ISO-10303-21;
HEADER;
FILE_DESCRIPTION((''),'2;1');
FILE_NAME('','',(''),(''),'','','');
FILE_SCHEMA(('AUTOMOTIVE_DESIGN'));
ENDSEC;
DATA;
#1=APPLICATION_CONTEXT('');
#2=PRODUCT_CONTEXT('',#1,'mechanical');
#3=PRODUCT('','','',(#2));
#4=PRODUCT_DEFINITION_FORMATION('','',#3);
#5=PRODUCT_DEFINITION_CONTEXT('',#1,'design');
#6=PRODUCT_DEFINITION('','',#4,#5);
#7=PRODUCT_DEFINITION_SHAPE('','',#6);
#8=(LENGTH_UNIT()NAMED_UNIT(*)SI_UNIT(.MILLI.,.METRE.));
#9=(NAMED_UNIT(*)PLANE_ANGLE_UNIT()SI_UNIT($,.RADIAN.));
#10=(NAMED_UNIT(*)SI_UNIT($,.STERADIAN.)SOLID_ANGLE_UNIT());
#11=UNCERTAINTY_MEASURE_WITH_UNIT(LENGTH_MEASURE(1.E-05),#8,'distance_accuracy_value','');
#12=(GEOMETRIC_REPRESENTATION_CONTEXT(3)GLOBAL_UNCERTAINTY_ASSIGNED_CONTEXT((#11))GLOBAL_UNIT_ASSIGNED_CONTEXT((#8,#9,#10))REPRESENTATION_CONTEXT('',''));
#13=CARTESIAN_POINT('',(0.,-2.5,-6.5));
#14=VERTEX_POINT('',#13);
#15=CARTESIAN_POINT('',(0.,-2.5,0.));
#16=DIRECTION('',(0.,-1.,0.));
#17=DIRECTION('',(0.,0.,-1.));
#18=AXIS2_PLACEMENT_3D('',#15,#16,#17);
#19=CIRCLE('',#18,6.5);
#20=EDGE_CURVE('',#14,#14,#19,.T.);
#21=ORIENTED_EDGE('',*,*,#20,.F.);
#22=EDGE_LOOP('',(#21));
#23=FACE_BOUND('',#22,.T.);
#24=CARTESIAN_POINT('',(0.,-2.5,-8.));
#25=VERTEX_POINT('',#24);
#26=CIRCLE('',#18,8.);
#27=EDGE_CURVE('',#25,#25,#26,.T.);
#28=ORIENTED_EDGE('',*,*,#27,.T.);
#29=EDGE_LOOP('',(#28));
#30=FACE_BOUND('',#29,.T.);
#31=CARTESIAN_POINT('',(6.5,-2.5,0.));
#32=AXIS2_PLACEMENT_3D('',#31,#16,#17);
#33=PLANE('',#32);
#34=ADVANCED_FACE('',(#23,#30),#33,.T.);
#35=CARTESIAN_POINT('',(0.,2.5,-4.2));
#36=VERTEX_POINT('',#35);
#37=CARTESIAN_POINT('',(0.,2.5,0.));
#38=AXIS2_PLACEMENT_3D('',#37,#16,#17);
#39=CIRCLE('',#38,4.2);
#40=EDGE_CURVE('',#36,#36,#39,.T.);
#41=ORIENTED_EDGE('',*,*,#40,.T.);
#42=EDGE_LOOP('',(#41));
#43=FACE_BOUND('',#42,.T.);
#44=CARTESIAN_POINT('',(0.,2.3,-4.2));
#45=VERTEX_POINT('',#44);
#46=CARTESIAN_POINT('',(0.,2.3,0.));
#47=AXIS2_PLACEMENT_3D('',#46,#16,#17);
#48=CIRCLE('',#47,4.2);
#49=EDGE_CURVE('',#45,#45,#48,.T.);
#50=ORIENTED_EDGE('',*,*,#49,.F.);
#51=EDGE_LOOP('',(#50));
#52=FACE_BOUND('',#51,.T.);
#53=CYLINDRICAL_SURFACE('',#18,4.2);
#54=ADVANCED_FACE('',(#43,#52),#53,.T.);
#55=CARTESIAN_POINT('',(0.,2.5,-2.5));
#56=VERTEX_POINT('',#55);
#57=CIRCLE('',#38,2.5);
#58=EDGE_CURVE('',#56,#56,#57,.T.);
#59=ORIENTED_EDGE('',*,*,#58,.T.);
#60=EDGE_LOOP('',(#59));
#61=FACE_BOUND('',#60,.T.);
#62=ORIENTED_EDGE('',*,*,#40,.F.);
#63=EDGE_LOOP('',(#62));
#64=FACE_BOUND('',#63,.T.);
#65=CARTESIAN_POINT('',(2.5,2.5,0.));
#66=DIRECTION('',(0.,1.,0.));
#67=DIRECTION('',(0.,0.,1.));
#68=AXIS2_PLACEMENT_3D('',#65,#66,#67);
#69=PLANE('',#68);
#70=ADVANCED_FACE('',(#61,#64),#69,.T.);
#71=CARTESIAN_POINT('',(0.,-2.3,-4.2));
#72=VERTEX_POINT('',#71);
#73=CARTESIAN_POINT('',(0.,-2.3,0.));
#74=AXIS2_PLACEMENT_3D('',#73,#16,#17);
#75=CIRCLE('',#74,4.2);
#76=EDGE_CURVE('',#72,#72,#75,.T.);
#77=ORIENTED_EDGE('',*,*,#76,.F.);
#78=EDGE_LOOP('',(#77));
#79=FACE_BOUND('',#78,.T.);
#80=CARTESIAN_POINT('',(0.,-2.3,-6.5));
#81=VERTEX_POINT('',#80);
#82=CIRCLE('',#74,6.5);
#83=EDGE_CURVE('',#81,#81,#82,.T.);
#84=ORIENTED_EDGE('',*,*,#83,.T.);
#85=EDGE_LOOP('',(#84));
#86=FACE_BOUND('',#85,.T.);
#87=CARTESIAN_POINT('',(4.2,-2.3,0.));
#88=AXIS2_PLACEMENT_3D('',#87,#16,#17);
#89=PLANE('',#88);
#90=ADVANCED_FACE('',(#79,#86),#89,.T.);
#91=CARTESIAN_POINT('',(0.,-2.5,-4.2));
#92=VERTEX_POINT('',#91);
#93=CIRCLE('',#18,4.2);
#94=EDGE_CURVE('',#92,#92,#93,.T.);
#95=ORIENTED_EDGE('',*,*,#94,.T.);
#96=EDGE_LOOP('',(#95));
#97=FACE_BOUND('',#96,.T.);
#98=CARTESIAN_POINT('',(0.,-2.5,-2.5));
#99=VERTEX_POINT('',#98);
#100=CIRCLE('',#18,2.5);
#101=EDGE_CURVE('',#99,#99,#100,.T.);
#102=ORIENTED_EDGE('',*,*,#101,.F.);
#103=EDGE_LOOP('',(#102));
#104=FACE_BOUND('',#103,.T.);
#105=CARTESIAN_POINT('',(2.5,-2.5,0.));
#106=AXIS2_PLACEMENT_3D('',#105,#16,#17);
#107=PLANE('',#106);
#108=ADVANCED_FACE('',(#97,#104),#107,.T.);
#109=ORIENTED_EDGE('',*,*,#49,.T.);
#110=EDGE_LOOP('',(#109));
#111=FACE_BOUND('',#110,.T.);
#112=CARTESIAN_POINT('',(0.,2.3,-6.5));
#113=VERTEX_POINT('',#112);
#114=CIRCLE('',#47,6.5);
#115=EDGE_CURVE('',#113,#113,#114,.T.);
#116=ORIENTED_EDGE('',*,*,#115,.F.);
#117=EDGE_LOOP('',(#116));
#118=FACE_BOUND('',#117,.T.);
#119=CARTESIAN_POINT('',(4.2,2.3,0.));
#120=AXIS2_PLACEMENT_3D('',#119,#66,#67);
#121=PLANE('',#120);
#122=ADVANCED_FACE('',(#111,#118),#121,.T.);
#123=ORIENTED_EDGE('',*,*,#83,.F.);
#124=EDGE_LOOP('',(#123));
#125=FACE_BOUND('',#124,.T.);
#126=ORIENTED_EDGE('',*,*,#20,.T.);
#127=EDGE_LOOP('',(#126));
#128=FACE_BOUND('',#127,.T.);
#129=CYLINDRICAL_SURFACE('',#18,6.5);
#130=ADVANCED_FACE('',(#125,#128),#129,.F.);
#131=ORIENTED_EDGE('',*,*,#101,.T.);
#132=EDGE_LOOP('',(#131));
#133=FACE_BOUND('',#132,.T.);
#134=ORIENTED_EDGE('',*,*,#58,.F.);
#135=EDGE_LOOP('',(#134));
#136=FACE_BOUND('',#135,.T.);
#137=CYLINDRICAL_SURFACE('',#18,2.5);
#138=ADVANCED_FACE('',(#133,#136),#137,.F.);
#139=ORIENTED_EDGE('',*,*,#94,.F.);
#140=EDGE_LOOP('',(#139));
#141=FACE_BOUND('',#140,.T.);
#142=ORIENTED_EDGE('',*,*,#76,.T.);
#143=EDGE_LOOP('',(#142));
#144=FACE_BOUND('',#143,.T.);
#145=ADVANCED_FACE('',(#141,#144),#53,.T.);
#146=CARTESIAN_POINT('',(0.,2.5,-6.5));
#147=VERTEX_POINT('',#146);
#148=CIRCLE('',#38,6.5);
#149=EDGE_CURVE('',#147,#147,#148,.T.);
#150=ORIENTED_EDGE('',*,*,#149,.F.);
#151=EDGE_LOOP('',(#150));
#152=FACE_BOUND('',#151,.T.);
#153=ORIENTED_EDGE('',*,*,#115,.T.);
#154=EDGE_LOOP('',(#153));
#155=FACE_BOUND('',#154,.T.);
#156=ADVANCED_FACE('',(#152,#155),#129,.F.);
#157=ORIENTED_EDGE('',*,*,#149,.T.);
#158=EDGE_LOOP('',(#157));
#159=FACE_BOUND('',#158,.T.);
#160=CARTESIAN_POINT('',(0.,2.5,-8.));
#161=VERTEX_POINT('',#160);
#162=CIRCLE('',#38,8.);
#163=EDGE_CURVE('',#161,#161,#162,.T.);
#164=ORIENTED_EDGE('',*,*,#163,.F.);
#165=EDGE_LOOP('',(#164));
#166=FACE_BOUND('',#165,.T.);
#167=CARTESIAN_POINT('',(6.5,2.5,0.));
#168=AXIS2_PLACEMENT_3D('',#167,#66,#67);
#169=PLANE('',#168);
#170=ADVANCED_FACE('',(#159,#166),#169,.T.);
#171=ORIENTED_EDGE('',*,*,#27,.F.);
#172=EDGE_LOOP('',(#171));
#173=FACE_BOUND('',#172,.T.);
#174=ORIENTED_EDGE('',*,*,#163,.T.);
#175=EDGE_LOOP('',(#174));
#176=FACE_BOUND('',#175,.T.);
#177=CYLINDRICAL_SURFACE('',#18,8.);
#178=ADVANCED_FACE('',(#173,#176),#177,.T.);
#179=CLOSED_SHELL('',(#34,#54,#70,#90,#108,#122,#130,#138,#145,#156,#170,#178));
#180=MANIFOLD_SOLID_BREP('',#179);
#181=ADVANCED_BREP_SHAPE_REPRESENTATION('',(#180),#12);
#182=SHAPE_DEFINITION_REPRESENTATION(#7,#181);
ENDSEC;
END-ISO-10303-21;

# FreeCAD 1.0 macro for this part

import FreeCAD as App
import Part
import Sketcher
from FreeCAD import Vector
Q = App.Units.Quantity


def add_polygon(sketch, points):
    """Adds a closed chain of lines whose ends are joined by coincident constraints."""
    first, n = sketch.GeometryCount, len(points)
    for a, b in zip(points, points[1:] + points[:1]):
        sketch.addGeometry(Part.LineSegment(App.Vector(*a, 0), App.Vector(*b, 0)), False)
    for i in range(n):
        sketch.addConstraint(Sketcher.Constraint("Coincident", first + i, 2, first + (i + 1) % n, 1))

doc = App.newDocument("Part")
params = doc.addObject("Spreadsheet::Sheet", "Params")
for row, (alias, value) in enumerate([
    ("sketch1_height", "5 mm"),
    ("sketch1_width", "1.7 mm"),
    ("sketch1_width2", "2.3 mm"),
    ("sketch1_width3", "1.5 mm"),
    ("sketch1_height2", "0.2 mm"),
    ("revolution_angle", "360 deg"),
], start=1):
    params.set(f"A{row}", alias)
    params.set(f"B{row}", "=" + value)
    params.setAlias(f"B{row}", alias)

body = doc.addObject("PartDesign::Body", "Body")

sketch1 = doc.addObject("Sketcher::SketchObject", "Sketch")
body.addObject(sketch1)
sketch1.AttachmentSupport = (doc.XY_Plane, [""])
sketch1.MapMode = "FlatFace"
add_polygon(sketch1, [(2.5, 2.5), (2.5, -2.5), (4.2, -2.5), (4.2, -2.3), (6.5, -2.3), (6.5, -2.5), (8, -2.5), (8, 2.5), (6.5, 2.5), (6.5, 2.3), (4.2, 2.3), (4.2, 2.5)])
sketch1.addConstraint([
    Sketcher.Constraint("Vertical", 0),
    Sketcher.Constraint("Horizontal", 1),
    Sketcher.Constraint("Vertical", 2),
    Sketcher.Constraint("Horizontal", 3),
    Sketcher.Constraint("Vertical", 4),
    Sketcher.Constraint("Horizontal", 5),
    Sketcher.Constraint("Vertical", 6),
    Sketcher.Constraint("Horizontal", 7),
    Sketcher.Constraint("Vertical", 8),
    Sketcher.Constraint("Horizontal", 9),
    Sketcher.Constraint("Vertical", 10),
    Sketcher.Constraint("Horizontal", 11),
    Sketcher.Constraint("Symmetric", 4, 2, 7, 2, -1),
    Sketcher.Constraint("Symmetric", 2, 2, 9, 2, -1),
    Sketcher.Constraint("Horizontal", 1, 2, 4, 2),
    Sketcher.Constraint("Horizontal", 7, 2, 10, 2),
    Sketcher.Constraint("DistanceY", 0, 2, 0, 1, Q("5 mm")),
    Sketcher.Constraint("DistanceX", 1, 1, 1, 2, Q("1.7 mm")),
    Sketcher.Constraint("DistanceX", 3, 1, 3, 2, Q("2.3 mm")),
    Sketcher.Constraint("DistanceX", 5, 1, 5, 2, Q("1.5 mm")),
    Sketcher.Constraint("DistanceY", 2, 1, 2, 2, Q("0.2 mm")),
    Sketcher.Constraint("DistanceX", -1, 1, 5, 2, Q("8 mm")),
])
sketch1.setExpression("Constraints[28]", "Params.sketch1_height")
sketch1.setExpression("Constraints[29]", "Params.sketch1_width")
sketch1.setExpression("Constraints[30]", "Params.sketch1_width2")
sketch1.setExpression("Constraints[31]", "Params.sketch1_width3")
sketch1.setExpression("Constraints[32]", "Params.sketch1_height2")
revolution = doc.addObject("PartDesign::Revolution", "Revolution")
body.addObject(revolution)
revolution.Profile = sketch1
revolution.ReferenceAxis = (sketch1, ["V_Axis"])
revolution.setExpression("Angle", "Params.revolution_angle")

doc.recompute()
